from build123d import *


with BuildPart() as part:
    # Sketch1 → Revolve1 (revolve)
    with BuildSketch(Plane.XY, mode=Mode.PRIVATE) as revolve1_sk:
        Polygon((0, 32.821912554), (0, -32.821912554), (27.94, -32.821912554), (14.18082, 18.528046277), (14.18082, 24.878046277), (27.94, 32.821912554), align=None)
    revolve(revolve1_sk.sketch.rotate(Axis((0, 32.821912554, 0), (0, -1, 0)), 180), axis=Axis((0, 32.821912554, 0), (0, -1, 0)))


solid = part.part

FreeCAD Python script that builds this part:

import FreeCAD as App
import Part
import Sketcher
Q = App.Units.Quantity


def add_polygon(sketch, points):
    """Adds a closed chain of lines whose ends are joined by coincident constraints."""
    first, n = sketch.GeometryCount, len(points)
    for a, b in zip(points, points[1:] + points[:1]):
        sketch.addGeometry(Part.LineSegment(App.Vector(*a, 0), App.Vector(*b, 0)), False)
    for i in range(n):
        sketch.addConstraint(Sketcher.Constraint("Coincident", first + i, 2, first + (i + 1) % n, 1))

doc = App.newDocument("Part")
body = doc.addObject("PartDesign::Body", "Body")

# Sketch on XY plane
sketch1 = body.newObject("Sketcher::SketchObject", "Sketch")
sketch1.AttachmentSupport = (doc.getObject("XY_Plane"), [""])
sketch1.MapMode = "FlatFace"
add_polygon(sketch1, [(0, 33), (0, -33), (28, -33), (14, 19), (14, 25), (28, 33)])  # lines 0-5
sketch1.addConstraint(Sketcher.Constraint("Vertical", 0))
sketch1.addConstraint(Sketcher.Constraint("Horizontal", 1))
sketch1.addConstraint(Sketcher.Constraint("Vertical", 3))
sketch1.addConstraint(Sketcher.Constraint("Horizontal", 5))
sketch1.addConstraint(Sketcher.Constraint("Symmetric", 0, 2, 5, 2, -1, 1))
sketch1.addConstraint(Sketcher.Constraint("Vertical", 1, 2, 4, 2))
sketch1.addConstraint(Sketcher.Constraint("DistanceX", 1, 1, 1, 2, Q("1.1 in")))
sketch1.addConstraint(Sketcher.Constraint("Angle", 2, Q("105 deg")))
sketch1.addConstraint(Sketcher.Constraint("Angle", 4, Q("30 deg")))
sketch1.addConstraint(Sketcher.Constraint("DistanceY", 3, 1, 3, 2, Q("0.25 in")))
sketch1.addConstraint(Sketcher.Constraint("DistanceX", -1, 1, 2, 2, Q("0.5583 in")))
revolution = body.newObject("PartDesign::Revolution", "Revolution")
revolution.Profile = sketch1
revolution.ReferenceAxis = (sketch1, ["V_Axis"])
revolution.Angle = 360

doc.recompute()
